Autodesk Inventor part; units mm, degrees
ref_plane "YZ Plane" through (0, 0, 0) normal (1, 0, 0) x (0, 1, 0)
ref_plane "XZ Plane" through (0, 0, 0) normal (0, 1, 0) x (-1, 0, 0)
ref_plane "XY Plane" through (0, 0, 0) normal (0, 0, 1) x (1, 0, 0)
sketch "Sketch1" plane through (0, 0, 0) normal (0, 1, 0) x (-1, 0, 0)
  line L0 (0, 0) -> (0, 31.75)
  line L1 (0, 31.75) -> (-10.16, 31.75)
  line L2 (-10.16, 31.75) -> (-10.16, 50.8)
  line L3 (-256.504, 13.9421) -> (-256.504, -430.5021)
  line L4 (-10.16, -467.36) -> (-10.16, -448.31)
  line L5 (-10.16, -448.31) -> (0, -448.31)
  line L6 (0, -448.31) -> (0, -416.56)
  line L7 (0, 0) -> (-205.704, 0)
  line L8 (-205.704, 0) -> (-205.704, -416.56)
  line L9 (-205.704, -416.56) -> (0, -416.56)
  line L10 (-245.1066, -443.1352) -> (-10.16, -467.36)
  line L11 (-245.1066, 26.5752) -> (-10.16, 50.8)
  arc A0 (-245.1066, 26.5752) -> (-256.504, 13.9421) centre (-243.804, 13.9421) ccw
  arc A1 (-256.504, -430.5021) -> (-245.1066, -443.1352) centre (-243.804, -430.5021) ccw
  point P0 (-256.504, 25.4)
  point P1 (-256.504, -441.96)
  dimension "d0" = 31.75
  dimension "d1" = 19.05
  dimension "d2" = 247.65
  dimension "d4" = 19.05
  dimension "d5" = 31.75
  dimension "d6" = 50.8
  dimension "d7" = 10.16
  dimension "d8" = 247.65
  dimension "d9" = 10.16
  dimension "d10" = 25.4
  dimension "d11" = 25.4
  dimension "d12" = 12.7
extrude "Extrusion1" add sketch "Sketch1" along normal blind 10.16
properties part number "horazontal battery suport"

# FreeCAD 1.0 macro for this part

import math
import FreeCAD as App
import Part
import Sketcher
Q = App.Units.Quantity

doc = App.newDocument("Part")
body = doc.addObject("PartDesign::Body", "Body")

# Sketch on XZ plane
sketch1 = body.newObject("Sketcher::SketchObject", "Sketch")
sketch1.AttachmentSupport = (doc.getObject("XZ_Plane"), [""])
sketch1.MapMode = "FlatFace"
sketch1.addGeometry(Part.LineSegment(App.Vector(206, 0, 0), App.Vector(0, 0, 0)), False)
sketch1.addGeometry(Part.LineSegment(App.Vector(0, 0, 0), App.Vector(0, 32, 0)), False)
sketch1.addGeometry(Part.LineSegment(App.Vector(0, 32, 0), App.Vector(10, 32, 0)), False)
sketch1.addGeometry(Part.LineSegment(App.Vector(10, 32, 0), App.Vector(10, 51, 0)), False)
sketch1.addGeometry(Part.LineSegment(App.Vector(10, 51, 0), App.Vector(245, 27, 0)), False)
sketch1.addGeometry(Part.ArcOfCircle(Part.Circle(App.Vector(244, 14, 0), App.Vector(0, 0, 1), 13), math.radians(0), math.radians(84)), False)
sketch1.addGeometry(Part.LineSegment(App.Vector(257, 14, 0), App.Vector(257, -431, 0)), False)
sketch1.addGeometry(Part.ArcOfCircle(Part.Circle(App.Vector(244, -431, 0), App.Vector(0, 0, 1), 13), math.radians(-84), math.radians(0)), False)
sketch1.addGeometry(Part.LineSegment(App.Vector(245, -443, 0), App.Vector(10, -467, 0)), False)
sketch1.addGeometry(Part.LineSegment(App.Vector(10, -467, 0), App.Vector(10, -448, 0)), False)
sketch1.addGeometry(Part.LineSegment(App.Vector(10, -448, 0), App.Vector(0, -448, 0)), False)
sketch1.addGeometry(Part.LineSegment(App.Vector(0, -448, 0), App.Vector(0, -417, 0)), False)
sketch1.addGeometry(Part.LineSegment(App.Vector(0, -417, 0), App.Vector(206, -417, 0)), False)
sketch1.addGeometry(Part.LineSegment(App.Vector(206, -417, 0), App.Vector(206, 0, 0)), False)
sketch1.addConstraint(Sketcher.Constraint("Coincident", 0, 2, 1, 1))
sketch1.addConstraint(Sketcher.Constraint("Coincident", 1, 2, 2, 1))
sketch1.addConstraint(Sketcher.Constraint("Coincident", 2, 2, 3, 1))
sketch1.addConstraint(Sketcher.Constraint("Coincident", 3, 2, 4, 1))
sketch1.addConstraint(Sketcher.Constraint("Tangent", 4, 2, 5, 2))
sketch1.addConstraint(Sketcher.Constraint("Tangent", 5, 1, 6, 1))
sketch1.addConstraint(Sketcher.Constraint("Tangent", 6, 2, 7, 2))
sketch1.addConstraint(Sketcher.Constraint("Tangent", 7, 1, 8, 1))
sketch1.addConstraint(Sketcher.Constraint("Coincident", 8, 2, 9, 1))
sketch1.addConstraint(Sketcher.Constraint("Coincident", 9, 2, 10, 1))
sketch1.addConstraint(Sketcher.Constraint("Coincident", 10, 2, 11, 1))
sketch1.addConstraint(Sketcher.Constraint("Coincident", 11, 2, 12, 1))
sketch1.addConstraint(Sketcher.Constraint("Coincident", 12, 2, 13, 1))
sketch1.addConstraint(Sketcher.Constraint("Coincident", 13, 2, 0, 1))
sketch1.addConstraint(Sketcher.Constraint("Horizontal", 0))
sketch1.addConstraint(Sketcher.Constraint("Vertical", 1))
sketch1.addConstraint(Sketcher.Constraint("Horizontal", 2))
sketch1.addConstraint(Sketcher.Constraint("Vertical", 3))
sketch1.addConstraint(Sketcher.Constraint("Vertical", 6))
sketch1.addConstraint(Sketcher.Constraint("Vertical", 9))
sketch1.addConstraint(Sketcher.Constraint("Horizontal", 10))
sketch1.addConstraint(Sketcher.Constraint("Vertical", 11))
sketch1.addConstraint(Sketcher.Constraint("Horizontal", 12))
sketch1.addConstraint(Sketcher.Constraint("Vertical", 13))
sketch1.addConstraint(Sketcher.Constraint("Coincident", 0, 2, -1, 1))
sketch1.addConstraint(Sketcher.Constraint("Equal", 5, 7))
sketch1.addConstraint(Sketcher.Constraint("PointOnObject", 10, 2, -2))
sketch1.addConstraint(Sketcher.Constraint("Vertical", 4, 2, 7, 1))
sketch1.addConstraint(Sketcher.Constraint("Vertical", 3, 2, 8, 2))
sketch1.addConstraint(Sketcher.Constraint("Equal", 3, 9))
sketch1.addConstraint(Sketcher.Constraint("Equal", 1, 11))
sketch1.addConstraint(Sketcher.Constraint("Radius", 5, Q("0.5 in")))
sketch1.addConstraint(Sketcher.Constraint("DistanceX", 2, 1, 2, 2, Q("0.4 in")))
sketch1.addConstraint(Sketcher.Constraint("DistanceY", -1, 1, 3, 2, Q("2 in")))
sketch1.addConstraint(Sketcher.Constraint("DistanceX", 12, 2, 6, 2, Q("2 in")))
sketch1.addConstraint(Sketcher.Constraint("DistanceY", 1, 1, 1, 2, Q("1.25 in")))
sketch1.addConstraint(Sketcher.Constraint("DistanceY", 13, 1, 13, 2, Q("16.4 in")))
sketch1.addConstraint(Sketcher.Constraint("DistanceY", 6, 2, 6, 1, Q("17.4978 in")))
sketch1.addConstraint(Sketcher.Constraint("Distance", 4, Q("9.2989 in")))
pad1 = body.newObject("PartDesign::Pad", "Pad")
pad1.Profile = sketch1
pad1.Length = Q("0.4 in")
pad1.Reversed = True

doc.recompute()
